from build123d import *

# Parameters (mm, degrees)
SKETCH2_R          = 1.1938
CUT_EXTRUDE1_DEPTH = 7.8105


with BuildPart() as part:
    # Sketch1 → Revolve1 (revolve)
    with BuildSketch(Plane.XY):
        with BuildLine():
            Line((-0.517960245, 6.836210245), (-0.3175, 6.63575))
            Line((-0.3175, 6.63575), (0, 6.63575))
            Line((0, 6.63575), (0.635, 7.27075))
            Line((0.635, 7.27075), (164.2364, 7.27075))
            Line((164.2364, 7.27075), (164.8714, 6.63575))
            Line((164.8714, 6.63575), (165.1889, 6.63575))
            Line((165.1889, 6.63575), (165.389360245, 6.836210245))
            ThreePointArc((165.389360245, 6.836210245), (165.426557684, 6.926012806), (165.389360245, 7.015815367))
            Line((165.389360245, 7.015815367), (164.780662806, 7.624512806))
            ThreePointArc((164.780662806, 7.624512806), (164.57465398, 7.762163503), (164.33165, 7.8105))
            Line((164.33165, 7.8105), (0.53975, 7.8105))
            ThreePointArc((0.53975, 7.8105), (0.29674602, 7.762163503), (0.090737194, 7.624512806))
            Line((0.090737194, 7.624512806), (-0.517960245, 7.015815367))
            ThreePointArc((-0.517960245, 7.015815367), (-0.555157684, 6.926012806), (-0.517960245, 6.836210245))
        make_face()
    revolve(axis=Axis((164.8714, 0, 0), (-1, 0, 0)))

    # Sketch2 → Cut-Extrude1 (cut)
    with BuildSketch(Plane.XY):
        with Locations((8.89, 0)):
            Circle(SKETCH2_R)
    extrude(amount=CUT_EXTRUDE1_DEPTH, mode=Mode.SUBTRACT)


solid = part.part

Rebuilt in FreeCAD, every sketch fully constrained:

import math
import FreeCAD as App
import Part
import Sketcher
from FreeCAD import Vector
Q = App.Units.Quantity

doc = App.newDocument("Part")
body = doc.addObject("PartDesign::Body", "Body")

sketch1 = doc.addObject("Sketcher::SketchObject", "Sketch")
body.addObject(sketch1)
sketch1.AttachmentSupport = (doc.XY_Plane, [""])
sketch1.MapMode = "FlatFace"
sketch1.addGeometry([
    Part.LineSegment(Vector(-0.52, 6.84, 0), Vector(-0.32, 6.64, 0)),
    Part.LineSegment(Vector(-0.32, 6.64, 0), Vector(0, 6.64, 0)),
    Part.LineSegment(Vector(0, 6.64, 0), Vector(0.64, 7.27, 0)),
    Part.LineSegment(Vector(0.64, 7.27, 0), Vector(164.24, 7.27, 0)),
    Part.LineSegment(Vector(164.24, 7.27, 0), Vector(164.87, 6.64, 0)),
    Part.LineSegment(Vector(164.87, 6.64, 0), Vector(165.19, 6.64, 0)),
    Part.LineSegment(Vector(165.19, 6.64, 0), Vector(165.39, 6.84, 0)),
    Part.ArcOfCircle(Part.Circle(Vector(165.3, 6.93, 0), Vector(0, 0, 1), 0.13), math.radians(-45), math.radians(45)),
    Part.LineSegment(Vector(165.39, 7.02, 0), Vector(164.78, 7.62, 0)),
    Part.ArcOfCircle(Part.Circle(Vector(164.33, 7.18, 0), Vector(0, 0, 1), 0.63), math.radians(45), math.radians(90)),
    Part.LineSegment(Vector(164.33, 7.81, 0), Vector(0.54, 7.81, 0)),
    Part.ArcOfCircle(Part.Circle(Vector(0.54, 7.18, 0), Vector(0, 0, 1), 0.63), math.radians(90), math.radians(135)),
    Part.LineSegment(Vector(0.09, 7.62, 0), Vector(-0.52, 7.02, 0)),
    Part.ArcOfCircle(Part.Circle(Vector(-0.43, 6.93, 0), Vector(0, 0, 1), 0.13), math.radians(135), math.radians(225)),
], False)
sketch1.addConstraint([
    Sketcher.Constraint("Coincident", 0, 2, 1, 1),
    Sketcher.Constraint("Coincident", 1, 2, 2, 1),
    Sketcher.Constraint("Coincident", 2, 2, 3, 1),
    Sketcher.Constraint("Coincident", 3, 2, 4, 1),
    Sketcher.Constraint("Coincident", 4, 2, 5, 1),
    Sketcher.Constraint("Coincident", 5, 2, 6, 1),
    Sketcher.Constraint("Tangent", 6, 2, 7, 1),
    Sketcher.Constraint("Tangent", 7, 2, 8, 1),
    Sketcher.Constraint("Tangent", 8, 2, 9, 1),
    Sketcher.Constraint("Tangent", 9, 2, 10, 1),
    Sketcher.Constraint("Tangent", 10, 2, 11, 1),
    Sketcher.Constraint("Tangent", 11, 2, 12, 1),
    Sketcher.Constraint("Tangent", 12, 2, 13, 1),
    Sketcher.Constraint("Tangent", 13, 2, 0, 1),
    Sketcher.Constraint("Horizontal", 1),
    Sketcher.Constraint("Horizontal", 3),
    Sketcher.Constraint("Horizontal", 5),
    Sketcher.Constraint("Horizontal", 10),
    Sketcher.Constraint("Equal", 9, 11),
    Sketcher.Constraint("Equal", 7, 13),
    Sketcher.Constraint("PointOnObject", 1, 2, -2),
    Sketcher.Constraint("Perpendicular", 0, 2),
    Sketcher.Constraint("Perpendicular", 2, 4),
    Sketcher.Constraint("Perpendicular", 4, 6),
    Sketcher.Constraint("Perpendicular", 6, 8),
    Sketcher.Constraint("Perpendicular", 8, 12),
    Sketcher.Constraint("Horizontal", 7, 3, 13, 3),
    Sketcher.Constraint("Horizontal", 1, 2, 4, 2),
    Sketcher.Constraint("Horizontal", 8, 2, 11, 2),
    Sketcher.Constraint("Equal", 1, 5),
    Sketcher.Constraint("Radius", 7, Q("0.005 in")),
    Sketcher.Constraint("Radius", 9, Q("0.025 in")),
    Sketcher.Constraint("DistanceX", 3, 1, 3, 2, Q("6.441 in")),
    Sketcher.Constraint("DistanceX", 1, 1, 1, 2, Q("0.0125 in")),
    Sketcher.Constraint("DistanceX", 10, 2, 10, 1, Q("6.4485 in")),
    Sketcher.Constraint("DistanceX", -1, 1, 2, 2, Q("0.025 in")),
    Sketcher.Constraint("DistanceY", -1, 1, 9, 3, Q("0.2825 in")),
    Sketcher.Constraint("DistanceY", 7, 3, 8, 2, Q("0.0275 in")),
])
revolution = doc.addObject("PartDesign::Revolution", "Revolution")
body.addObject(revolution)
revolution.Profile = sketch1
revolution.ReferenceAxis = (sketch1, ["H_Axis"])
revolution.Angle = 360

sketch2 = doc.addObject("Sketcher::SketchObject", "Sketch001")
body.addObject(sketch2)
sketch2.AttachmentSupport = (doc.XY_Plane, [""])
sketch2.MapMode = "FlatFace"
sketch2.addGeometry(Part.Circle(Vector(8.9, 0, 0), Vector(0, 0, 1), 1.2), False)
sketch2.addConstraint([
    Sketcher.Constraint("PointOnObject", 0, 3, -1),
    Sketcher.Constraint("Diameter", 0, Q("0.094 in")),
    Sketcher.Constraint("DistanceX", -1, 1, 0, 3, Q("0.35 in")),
])
pocket1 = doc.addObject("PartDesign::Pocket", "Pocket")
body.addObject(pocket1)
pocket1.Profile = sketch2
pocket1.Length = Q("0.3075 in")
pocket1.Reversed = True

doc.recompute()
